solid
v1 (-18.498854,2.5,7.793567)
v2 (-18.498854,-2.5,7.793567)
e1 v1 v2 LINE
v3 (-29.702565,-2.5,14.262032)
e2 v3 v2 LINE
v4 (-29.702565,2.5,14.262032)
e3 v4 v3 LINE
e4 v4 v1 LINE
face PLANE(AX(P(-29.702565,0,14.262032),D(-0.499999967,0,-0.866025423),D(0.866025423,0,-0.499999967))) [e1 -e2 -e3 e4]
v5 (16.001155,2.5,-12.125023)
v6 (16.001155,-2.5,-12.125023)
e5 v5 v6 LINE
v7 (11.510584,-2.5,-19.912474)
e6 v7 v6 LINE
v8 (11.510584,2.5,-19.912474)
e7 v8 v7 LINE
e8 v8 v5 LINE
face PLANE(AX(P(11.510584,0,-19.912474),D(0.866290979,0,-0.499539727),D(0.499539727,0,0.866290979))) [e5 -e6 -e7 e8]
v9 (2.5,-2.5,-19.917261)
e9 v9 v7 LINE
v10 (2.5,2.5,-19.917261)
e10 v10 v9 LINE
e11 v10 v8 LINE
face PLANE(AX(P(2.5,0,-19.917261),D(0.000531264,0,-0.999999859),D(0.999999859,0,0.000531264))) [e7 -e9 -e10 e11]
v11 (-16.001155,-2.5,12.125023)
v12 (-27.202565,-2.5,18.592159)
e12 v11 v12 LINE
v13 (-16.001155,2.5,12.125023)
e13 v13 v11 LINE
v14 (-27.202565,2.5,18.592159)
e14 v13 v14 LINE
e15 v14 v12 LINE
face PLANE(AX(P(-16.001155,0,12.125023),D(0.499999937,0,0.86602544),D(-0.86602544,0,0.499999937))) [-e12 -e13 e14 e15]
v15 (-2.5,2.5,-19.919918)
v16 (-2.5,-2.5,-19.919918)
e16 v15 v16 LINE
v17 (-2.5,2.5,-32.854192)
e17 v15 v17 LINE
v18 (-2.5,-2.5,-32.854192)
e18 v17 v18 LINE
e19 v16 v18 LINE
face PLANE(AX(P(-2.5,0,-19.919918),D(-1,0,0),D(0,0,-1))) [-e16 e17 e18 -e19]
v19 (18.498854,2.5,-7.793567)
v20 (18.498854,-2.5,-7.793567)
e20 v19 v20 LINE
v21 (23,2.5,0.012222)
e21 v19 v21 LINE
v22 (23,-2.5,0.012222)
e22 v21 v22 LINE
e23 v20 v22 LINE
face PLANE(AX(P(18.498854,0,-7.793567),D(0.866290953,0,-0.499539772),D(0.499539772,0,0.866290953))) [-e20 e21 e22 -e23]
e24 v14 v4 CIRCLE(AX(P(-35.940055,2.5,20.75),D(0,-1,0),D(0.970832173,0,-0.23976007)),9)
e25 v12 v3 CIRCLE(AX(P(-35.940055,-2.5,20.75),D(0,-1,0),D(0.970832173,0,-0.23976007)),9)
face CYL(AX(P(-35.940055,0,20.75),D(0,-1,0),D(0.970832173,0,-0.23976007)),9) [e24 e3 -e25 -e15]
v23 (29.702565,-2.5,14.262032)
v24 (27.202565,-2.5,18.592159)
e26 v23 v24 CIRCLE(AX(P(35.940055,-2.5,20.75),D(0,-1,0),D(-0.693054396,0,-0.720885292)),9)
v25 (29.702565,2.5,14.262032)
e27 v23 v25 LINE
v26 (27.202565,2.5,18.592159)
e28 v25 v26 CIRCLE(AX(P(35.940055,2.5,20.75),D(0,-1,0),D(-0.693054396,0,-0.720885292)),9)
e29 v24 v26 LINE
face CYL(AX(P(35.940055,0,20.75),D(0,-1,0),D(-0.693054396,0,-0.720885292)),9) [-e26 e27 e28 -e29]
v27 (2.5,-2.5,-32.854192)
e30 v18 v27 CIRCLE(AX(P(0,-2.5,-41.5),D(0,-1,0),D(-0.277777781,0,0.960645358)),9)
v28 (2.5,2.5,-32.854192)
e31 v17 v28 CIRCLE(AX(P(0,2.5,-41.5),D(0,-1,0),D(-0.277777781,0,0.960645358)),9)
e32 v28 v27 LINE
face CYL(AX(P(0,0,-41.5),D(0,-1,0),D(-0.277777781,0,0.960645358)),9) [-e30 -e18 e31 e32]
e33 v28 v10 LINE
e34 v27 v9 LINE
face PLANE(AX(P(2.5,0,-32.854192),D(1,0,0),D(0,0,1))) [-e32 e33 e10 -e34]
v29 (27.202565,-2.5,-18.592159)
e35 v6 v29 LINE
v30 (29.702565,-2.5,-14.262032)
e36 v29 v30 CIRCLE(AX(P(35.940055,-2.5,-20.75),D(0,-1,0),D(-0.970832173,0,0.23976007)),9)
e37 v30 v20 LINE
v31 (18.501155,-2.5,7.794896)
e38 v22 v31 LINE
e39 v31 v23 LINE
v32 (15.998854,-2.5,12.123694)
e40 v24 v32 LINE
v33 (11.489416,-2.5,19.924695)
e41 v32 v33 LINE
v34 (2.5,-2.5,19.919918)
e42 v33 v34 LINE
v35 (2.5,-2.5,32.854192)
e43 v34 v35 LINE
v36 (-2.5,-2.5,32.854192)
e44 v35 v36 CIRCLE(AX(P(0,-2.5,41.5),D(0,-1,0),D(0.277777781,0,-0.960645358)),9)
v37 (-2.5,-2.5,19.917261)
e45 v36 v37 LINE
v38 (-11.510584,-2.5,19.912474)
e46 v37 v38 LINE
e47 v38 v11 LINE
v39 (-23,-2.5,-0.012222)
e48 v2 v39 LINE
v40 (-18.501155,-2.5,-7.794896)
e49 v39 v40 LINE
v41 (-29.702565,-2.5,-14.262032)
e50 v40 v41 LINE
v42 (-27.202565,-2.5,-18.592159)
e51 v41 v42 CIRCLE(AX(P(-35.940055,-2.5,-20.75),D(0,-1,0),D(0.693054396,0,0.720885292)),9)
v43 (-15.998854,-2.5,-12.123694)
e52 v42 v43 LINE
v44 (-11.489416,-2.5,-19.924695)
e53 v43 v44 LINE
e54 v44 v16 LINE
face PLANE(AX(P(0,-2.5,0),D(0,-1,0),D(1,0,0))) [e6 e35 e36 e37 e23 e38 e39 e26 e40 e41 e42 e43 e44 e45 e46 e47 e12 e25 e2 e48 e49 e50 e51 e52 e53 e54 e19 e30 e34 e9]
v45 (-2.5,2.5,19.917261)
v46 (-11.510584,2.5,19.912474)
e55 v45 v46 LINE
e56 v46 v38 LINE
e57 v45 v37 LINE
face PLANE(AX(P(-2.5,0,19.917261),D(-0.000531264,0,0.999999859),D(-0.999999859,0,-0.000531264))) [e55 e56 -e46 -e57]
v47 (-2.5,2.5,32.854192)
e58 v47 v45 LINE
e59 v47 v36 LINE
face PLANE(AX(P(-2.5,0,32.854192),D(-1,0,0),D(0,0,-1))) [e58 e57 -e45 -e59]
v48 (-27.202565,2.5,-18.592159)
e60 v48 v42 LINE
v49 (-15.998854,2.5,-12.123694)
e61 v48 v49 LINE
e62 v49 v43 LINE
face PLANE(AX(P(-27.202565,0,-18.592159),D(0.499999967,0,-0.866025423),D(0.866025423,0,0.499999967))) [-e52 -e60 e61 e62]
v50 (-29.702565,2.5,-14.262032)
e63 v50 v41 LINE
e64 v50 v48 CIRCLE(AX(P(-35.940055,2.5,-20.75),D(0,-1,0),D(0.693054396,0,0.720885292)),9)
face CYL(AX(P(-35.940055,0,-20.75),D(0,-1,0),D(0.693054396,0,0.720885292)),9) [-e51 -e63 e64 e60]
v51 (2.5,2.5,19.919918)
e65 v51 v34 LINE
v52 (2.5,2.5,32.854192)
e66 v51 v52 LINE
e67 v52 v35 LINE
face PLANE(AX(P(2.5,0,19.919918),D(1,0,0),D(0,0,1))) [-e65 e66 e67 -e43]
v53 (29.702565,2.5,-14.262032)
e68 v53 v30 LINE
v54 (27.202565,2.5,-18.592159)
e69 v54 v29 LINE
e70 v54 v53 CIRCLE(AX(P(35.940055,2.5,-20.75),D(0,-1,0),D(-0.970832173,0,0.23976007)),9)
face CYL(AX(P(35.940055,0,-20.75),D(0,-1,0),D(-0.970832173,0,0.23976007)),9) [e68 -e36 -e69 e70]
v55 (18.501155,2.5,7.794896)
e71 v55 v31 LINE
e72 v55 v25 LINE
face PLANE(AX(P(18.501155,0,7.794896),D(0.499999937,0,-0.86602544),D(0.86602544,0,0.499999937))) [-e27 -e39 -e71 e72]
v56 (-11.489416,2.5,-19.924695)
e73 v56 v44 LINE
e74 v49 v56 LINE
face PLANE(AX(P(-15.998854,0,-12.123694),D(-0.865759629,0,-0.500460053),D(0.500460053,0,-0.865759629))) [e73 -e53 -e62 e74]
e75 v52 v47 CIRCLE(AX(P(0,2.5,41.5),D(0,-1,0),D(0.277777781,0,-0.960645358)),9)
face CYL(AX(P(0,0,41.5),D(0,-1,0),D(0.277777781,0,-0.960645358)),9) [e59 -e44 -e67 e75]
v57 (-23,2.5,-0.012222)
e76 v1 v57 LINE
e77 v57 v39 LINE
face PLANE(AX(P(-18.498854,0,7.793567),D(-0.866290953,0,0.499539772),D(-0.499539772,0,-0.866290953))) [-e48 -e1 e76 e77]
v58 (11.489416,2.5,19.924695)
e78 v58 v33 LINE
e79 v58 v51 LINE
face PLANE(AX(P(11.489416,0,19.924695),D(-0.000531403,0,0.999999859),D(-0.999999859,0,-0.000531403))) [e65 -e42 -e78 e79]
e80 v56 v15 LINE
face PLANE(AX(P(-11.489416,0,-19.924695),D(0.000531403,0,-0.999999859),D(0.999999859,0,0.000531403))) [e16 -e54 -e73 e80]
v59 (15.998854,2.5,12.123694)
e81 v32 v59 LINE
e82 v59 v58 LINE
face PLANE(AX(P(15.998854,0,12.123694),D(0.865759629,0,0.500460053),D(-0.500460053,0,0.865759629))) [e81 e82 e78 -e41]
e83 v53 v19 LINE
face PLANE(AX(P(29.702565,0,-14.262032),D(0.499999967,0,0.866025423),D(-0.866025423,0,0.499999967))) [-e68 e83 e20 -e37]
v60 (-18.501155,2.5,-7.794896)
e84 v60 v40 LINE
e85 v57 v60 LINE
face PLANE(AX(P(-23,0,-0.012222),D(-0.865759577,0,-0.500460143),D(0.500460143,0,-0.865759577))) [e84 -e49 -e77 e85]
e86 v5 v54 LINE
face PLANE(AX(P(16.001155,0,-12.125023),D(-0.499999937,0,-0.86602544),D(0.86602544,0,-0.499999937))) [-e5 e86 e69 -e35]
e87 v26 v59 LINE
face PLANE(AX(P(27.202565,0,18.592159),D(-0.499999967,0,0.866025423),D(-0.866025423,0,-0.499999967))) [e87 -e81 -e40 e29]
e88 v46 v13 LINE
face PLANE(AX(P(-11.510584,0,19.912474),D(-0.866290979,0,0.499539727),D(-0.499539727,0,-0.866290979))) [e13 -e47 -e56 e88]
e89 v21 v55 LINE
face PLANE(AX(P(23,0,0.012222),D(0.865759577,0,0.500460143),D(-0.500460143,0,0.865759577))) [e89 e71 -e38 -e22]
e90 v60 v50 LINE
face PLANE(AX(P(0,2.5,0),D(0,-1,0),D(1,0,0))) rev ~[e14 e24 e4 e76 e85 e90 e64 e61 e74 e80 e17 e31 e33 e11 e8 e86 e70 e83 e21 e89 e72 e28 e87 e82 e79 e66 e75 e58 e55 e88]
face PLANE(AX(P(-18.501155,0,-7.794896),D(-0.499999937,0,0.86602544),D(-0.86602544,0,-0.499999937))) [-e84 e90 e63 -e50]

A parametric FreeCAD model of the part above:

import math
import FreeCAD as App
import Part
import Sketcher

V = App.Vector
Q = App.Units.Quantity

doc = App.newDocument("Part")
body = doc.addObject("PartDesign::Body", "Body")

# Sketch on XZ plane
sketch1 = body.newObject("Sketcher::SketchObject", "Sketch")
sketch1.AttachmentSupport = (doc.getObject("XZ_Plane"), [""])
sketch1.MapMode = "FlatFace"
sketch1.addGeometry(Part.LineSegment(V(16, 12.1, 0), V(11.5, 19.9, 0)), False)
sketch1.addGeometry(Part.LineSegment(V(11.5, 19.9, 0), V(2.5, 19.9, 0)), False)
sketch1.addGeometry(Part.LineSegment(V(2.5, 19.9, 0), V(2.5, 32.9, 0)), False)
sketch1.addGeometry(Part.ArcOfCircle(Part.Circle(V(0, 41.5, 0), V(0, 0, 1), 9), math.radians(-74), math.radians(254)), False)
sketch1.addGeometry(Part.LineSegment(V(-2.5, 32.9, 0), V(-2.5, 19.9, 0)), False)
sketch1.addGeometry(Part.LineSegment(V(-2.5, 19.9, 0), V(-11.5, 19.9, 0)), False)
sketch1.addGeometry(Part.LineSegment(V(-11.5, 19.9, 0), V(-16, 12.1, 0)), False)
sketch1.addGeometry(Part.LineSegment(V(-16, 12.1, 0), V(-27.2, 18.6, 0)), False)
sketch1.addGeometry(Part.ArcOfCircle(Part.Circle(V(-35.9, 20.7, 0), V(0, 0, 1), 9), math.radians(-14), math.radians(314)), False)
sketch1.addGeometry(Part.LineSegment(V(-29.7, 14.3, 0), V(-18.5, 7.8, 0)), False)
sketch1.addGeometry(Part.LineSegment(V(-18.5, 7.8, 0), V(-23, 0, 0)), False)
sketch1.addGeometry(Part.LineSegment(V(-23, 0, 0), V(-18.5, -7.8, 0)), False)
sketch1.addGeometry(Part.LineSegment(V(-18.5, -7.8, 0), V(-29.7, -14.3, 0)), False)
sketch1.addGeometry(Part.ArcOfCircle(Part.Circle(V(-35.9, -20.7, 0), V(0, 0, 1), 9), math.radians(46), math.radians(374)), False)
sketch1.addGeometry(Part.LineSegment(V(-27.2, -18.6, 0), V(-16, -12.1, 0)), False)
sketch1.addGeometry(Part.LineSegment(V(-16, -12.1, 0), V(-11.5, -19.9, 0)), False)
sketch1.addGeometry(Part.LineSegment(V(-11.5, -19.9, 0), V(-2.5, -19.9, 0)), False)
sketch1.addGeometry(Part.LineSegment(V(-2.5, -19.9, 0), V(-2.5, -32.9, 0)), False)
sketch1.addGeometry(Part.ArcOfCircle(Part.Circle(V(0, -41.5, 0), V(0, 0, 1), 9), math.radians(106), math.radians(434)), False)
sketch1.addGeometry(Part.LineSegment(V(2.5, -32.9, 0), V(2.5, -19.9, 0)), False)
sketch1.addGeometry(Part.LineSegment(V(2.5, -19.9, 0), V(11.5, -19.9, 0)), False)
sketch1.addGeometry(Part.LineSegment(V(11.5, -19.9, 0), V(16, -12.1, 0)), False)
sketch1.addGeometry(Part.LineSegment(V(16, -12.1, 0), V(27.2, -18.6, 0)), False)
sketch1.addGeometry(Part.ArcOfCircle(Part.Circle(V(35.9, -20.7, 0), V(0, 0, 1), 9), math.radians(166), math.radians(494)), False)
sketch1.addGeometry(Part.LineSegment(V(29.7, -14.3, 0), V(18.5, -7.8, 0)), False)
sketch1.addGeometry(Part.LineSegment(V(18.5, -7.8, 0), V(23, 0, 0)), False)
sketch1.addGeometry(Part.LineSegment(V(23, 0, 0), V(18.5, 7.8, 0)), False)
sketch1.addGeometry(Part.LineSegment(V(18.5, 7.8, 0), V(29.7, 14.3, 0)), False)
sketch1.addGeometry(Part.ArcOfCircle(Part.Circle(V(35.9, 20.7, 0), V(0, 0, 1), 9), math.radians(-134), math.radians(194)), False)
sketch1.addGeometry(Part.LineSegment(V(27.2, 18.6, 0), V(16, 12.1, 0)), False)
sketch1.addConstraint(Sketcher.Constraint("Coincident", 0, 2, 1, 1))
sketch1.addConstraint(Sketcher.Constraint("Coincident", 1, 2, 2, 1))
sketch1.addConstraint(Sketcher.Constraint("Coincident", 2, 2, 3, 1))
sketch1.addConstraint(Sketcher.Constraint("Coincident", 3, 2, 4, 1))
sketch1.addConstraint(Sketcher.Constraint("Coincident", 4, 2, 5, 1))
sketch1.addConstraint(Sketcher.Constraint("Coincident", 5, 2, 6, 1))
sketch1.addConstraint(Sketcher.Constraint("Coincident", 6, 2, 7, 1))
sketch1.addConstraint(Sketcher.Constraint("Coincident", 7, 2, 8, 1))
sketch1.addConstraint(Sketcher.Constraint("Coincident", 8, 2, 9, 1))
sketch1.addConstraint(Sketcher.Constraint("Coincident", 9, 2, 10, 1))
sketch1.addConstraint(Sketcher.Constraint("Coincident", 10, 2, 11, 1))
sketch1.addConstraint(Sketcher.Constraint("Coincident", 11, 2, 12, 1))
sketch1.addConstraint(Sketcher.Constraint("Coincident", 12, 2, 13, 1))
sketch1.addConstraint(Sketcher.Constraint("Coincident", 13, 2, 14, 1))
sketch1.addConstraint(Sketcher.Constraint("Coincident", 14, 2, 15, 1))
sketch1.addConstraint(Sketcher.Constraint("Coincident", 15, 2, 16, 1))
sketch1.addConstraint(Sketcher.Constraint("Coincident", 16, 2, 17, 1))
sketch1.addConstraint(Sketcher.Constraint("Coincident", 17, 2, 18, 1))
sketch1.addConstraint(Sketcher.Constraint("Coincident", 18, 2, 19, 1))
sketch1.addConstraint(Sketcher.Constraint("Coincident", 19, 2, 20, 1))
sketch1.addConstraint(Sketcher.Constraint("Coincident", 20, 2, 21, 1))
sketch1.addConstraint(Sketcher.Constraint("Coincident", 21, 2, 22, 1))
sketch1.addConstraint(Sketcher.Constraint("Coincident", 22, 2, 23, 1))
sketch1.addConstraint(Sketcher.Constraint("Coincident", 23, 2, 24, 1))
sketch1.addConstraint(Sketcher.Constraint("Coincident", 24, 2, 25, 1))
sketch1.addConstraint(Sketcher.Constraint("Coincident", 25, 2, 26, 1))
sketch1.addConstraint(Sketcher.Constraint("Coincident", 26, 2, 27, 1))
sketch1.addConstraint(Sketcher.Constraint("Coincident", 27, 2, 28, 1))
sketch1.addConstraint(Sketcher.Constraint("Coincident", 28, 2, 29, 1))
sketch1.addConstraint(Sketcher.Constraint("Coincident", 29, 2, 0, 1))
sketch1.addConstraint(Sketcher.Constraint("Vertical", 2))
sketch1.addConstraint(Sketcher.Constraint("Vertical", 4))
sketch1.addConstraint(Sketcher.Constraint("Vertical", 17))
sketch1.addConstraint(Sketcher.Constraint("Vertical", 19))
sketch1.addConstraint(Sketcher.Constraint("Equal", 3, 8))
sketch1.addConstraint(Sketcher.Constraint("Equal", 8, 13))
sketch1.addConstraint(Sketcher.Constraint("Equal", 13, 18))
sketch1.addConstraint(Sketcher.Constraint("Equal", 18, 23))
sketch1.addConstraint(Sketcher.Constraint("Equal", 23, 28))
sketch1.addConstraint(Sketcher.Constraint("Symmetric", 3, 3, 18, 3, -1, 1))
sketch1.addConstraint(Sketcher.Constraint("Symmetric", 8, 3, 23, 3, -1, 1))
sketch1.addConstraint(Sketcher.Constraint("Symmetric", 13, 3, 28, 3, -1, 1))
sketch1.addConstraint(Sketcher.Constraint("Symmetric", 0, 2, 15, 2, -1, 1))
sketch1.addConstraint(Sketcher.Constraint("Symmetric", 1, 2, 16, 2, -1, 1))
sketch1.addConstraint(Sketcher.Constraint("Symmetric", 4, 2, 19, 2, -1, 1))
sketch1.addConstraint(Sketcher.Constraint("Symmetric", 5, 2, 20, 2, -1, 1))
sketch1.addConstraint(Sketcher.Constraint("Symmetric", 6, 2, 21, 2, -1, 1))
sketch1.addConstraint(Sketcher.Constraint("Symmetric", 9, 2, 24, 2, -1, 1))
sketch1.addConstraint(Sketcher.Constraint("Symmetric", 10, 2, 25, 2, -1, 1))
sketch1.addConstraint(Sketcher.Constraint("Symmetric", 11, 2, 26, 2, -1, 1))
sketch1.addConstraint(Sketcher.Constraint("Symmetric", 14, 2, 29, 2, -1, 1))
sketch1.addConstraint(Sketcher.Constraint("Symmetric", 13, 3, 23, 3, -2))
sketch1.addConstraint(Sketcher.Constraint("Symmetric", 2, 2, 3, 2, -2))
sketch1.addConstraint(Sketcher.Constraint("Parallel", 1, 5))
sketch1.addConstraint(Sketcher.Constraint("Parallel", 7, 9))
sketch1.addConstraint(Sketcher.Constraint("Parallel", 6, 10))
sketch1.addConstraint(Sketcher.Constraint("Parallel", 0, 11))
sketch1.addConstraint(Sketcher.Constraint("Parallel", 12, 14))
sketch1.addConstraint(Sketcher.Constraint("Parallel", 9, 22))
sketch1.addConstraint(Sketcher.Constraint("Parallel", 22, 24))
sketch1.addConstraint(Sketcher.Constraint("Parallel", 14, 27))
sketch1.addConstraint(Sketcher.Constraint("Parallel", 27, 29))
sketch1.addConstraint(Sketcher.Constraint("Horizontal", 13, 2, 22, 2))
sketch1.addConstraint(Sketcher.Constraint("Horizontal", 12, 2, 23, 2))
sketch1.addConstraint(Sketcher.Constraint("Equal", 0, 5))
sketch1.addConstraint(Sketcher.Constraint("Equal", 1, 6))
sketch1.addConstraint(Sketcher.Constraint("Equal", 5, 10))
sketch1.addConstraint(Sketcher.Constraint("Equal", 6, 11))
sketch1.addConstraint(Sketcher.Constraint("Equal", 7, 12))
sketch1.addConstraint(Sketcher.Constraint("Equal", 9, 14))
sketch1.addConstraint(Sketcher.Constraint("Radius", 3, Q("9 mm")))
sketch1.addConstraint(Sketcher.Constraint("Angle", 7, Q("150.000004 deg")))
sketch1.addConstraint(Sketcher.Constraint("DistanceX", 10, 2, -1, 1, Q("23 mm")))
sketch1.addConstraint(Sketcher.Constraint("DistanceY", 18, 3, 3, 3, Q("83 mm")))
sketch1.addConstraint(Sketcher.Constraint("DistanceX", 3, 2, 2, 2, Q("5 mm")))
sketch1.addConstraint(Sketcher.Constraint("DistanceX", 5, 2, 0, 2, Q("23 mm")))
sketch1.addConstraint(Sketcher.Constraint("DistanceY", 13, 3, 8, 3, Q("41.499999 mm")))
sketch1.addConstraint(Sketcher.Constraint("DistanceX", 8, 2, 7, 2, Q("2.5 mm")))
sketch1.addConstraint(Sketcher.Constraint("DistanceY", 15, 2, 14, 2, Q("7.801001 mm")))
sketch1.addConstraint(Sketcher.Constraint("DistanceY", 4, 2, 4, 1, Q("12.936931 mm")))
sketch1.addConstraint(Sketcher.Constraint("DistanceX", 8, 3, 6, 2, Q("19.9389 mm")))
sketch1.addConstraint(Sketcher.Constraint("DistanceX", 9, 2, 6, 2, Q("2.497699 mm")))
pad1 = body.newObject("PartDesign::Pad", "Pad")
pad1.Profile = sketch1
pad1.Length = 5
pad1.Midplane = True

doc.recompute()
